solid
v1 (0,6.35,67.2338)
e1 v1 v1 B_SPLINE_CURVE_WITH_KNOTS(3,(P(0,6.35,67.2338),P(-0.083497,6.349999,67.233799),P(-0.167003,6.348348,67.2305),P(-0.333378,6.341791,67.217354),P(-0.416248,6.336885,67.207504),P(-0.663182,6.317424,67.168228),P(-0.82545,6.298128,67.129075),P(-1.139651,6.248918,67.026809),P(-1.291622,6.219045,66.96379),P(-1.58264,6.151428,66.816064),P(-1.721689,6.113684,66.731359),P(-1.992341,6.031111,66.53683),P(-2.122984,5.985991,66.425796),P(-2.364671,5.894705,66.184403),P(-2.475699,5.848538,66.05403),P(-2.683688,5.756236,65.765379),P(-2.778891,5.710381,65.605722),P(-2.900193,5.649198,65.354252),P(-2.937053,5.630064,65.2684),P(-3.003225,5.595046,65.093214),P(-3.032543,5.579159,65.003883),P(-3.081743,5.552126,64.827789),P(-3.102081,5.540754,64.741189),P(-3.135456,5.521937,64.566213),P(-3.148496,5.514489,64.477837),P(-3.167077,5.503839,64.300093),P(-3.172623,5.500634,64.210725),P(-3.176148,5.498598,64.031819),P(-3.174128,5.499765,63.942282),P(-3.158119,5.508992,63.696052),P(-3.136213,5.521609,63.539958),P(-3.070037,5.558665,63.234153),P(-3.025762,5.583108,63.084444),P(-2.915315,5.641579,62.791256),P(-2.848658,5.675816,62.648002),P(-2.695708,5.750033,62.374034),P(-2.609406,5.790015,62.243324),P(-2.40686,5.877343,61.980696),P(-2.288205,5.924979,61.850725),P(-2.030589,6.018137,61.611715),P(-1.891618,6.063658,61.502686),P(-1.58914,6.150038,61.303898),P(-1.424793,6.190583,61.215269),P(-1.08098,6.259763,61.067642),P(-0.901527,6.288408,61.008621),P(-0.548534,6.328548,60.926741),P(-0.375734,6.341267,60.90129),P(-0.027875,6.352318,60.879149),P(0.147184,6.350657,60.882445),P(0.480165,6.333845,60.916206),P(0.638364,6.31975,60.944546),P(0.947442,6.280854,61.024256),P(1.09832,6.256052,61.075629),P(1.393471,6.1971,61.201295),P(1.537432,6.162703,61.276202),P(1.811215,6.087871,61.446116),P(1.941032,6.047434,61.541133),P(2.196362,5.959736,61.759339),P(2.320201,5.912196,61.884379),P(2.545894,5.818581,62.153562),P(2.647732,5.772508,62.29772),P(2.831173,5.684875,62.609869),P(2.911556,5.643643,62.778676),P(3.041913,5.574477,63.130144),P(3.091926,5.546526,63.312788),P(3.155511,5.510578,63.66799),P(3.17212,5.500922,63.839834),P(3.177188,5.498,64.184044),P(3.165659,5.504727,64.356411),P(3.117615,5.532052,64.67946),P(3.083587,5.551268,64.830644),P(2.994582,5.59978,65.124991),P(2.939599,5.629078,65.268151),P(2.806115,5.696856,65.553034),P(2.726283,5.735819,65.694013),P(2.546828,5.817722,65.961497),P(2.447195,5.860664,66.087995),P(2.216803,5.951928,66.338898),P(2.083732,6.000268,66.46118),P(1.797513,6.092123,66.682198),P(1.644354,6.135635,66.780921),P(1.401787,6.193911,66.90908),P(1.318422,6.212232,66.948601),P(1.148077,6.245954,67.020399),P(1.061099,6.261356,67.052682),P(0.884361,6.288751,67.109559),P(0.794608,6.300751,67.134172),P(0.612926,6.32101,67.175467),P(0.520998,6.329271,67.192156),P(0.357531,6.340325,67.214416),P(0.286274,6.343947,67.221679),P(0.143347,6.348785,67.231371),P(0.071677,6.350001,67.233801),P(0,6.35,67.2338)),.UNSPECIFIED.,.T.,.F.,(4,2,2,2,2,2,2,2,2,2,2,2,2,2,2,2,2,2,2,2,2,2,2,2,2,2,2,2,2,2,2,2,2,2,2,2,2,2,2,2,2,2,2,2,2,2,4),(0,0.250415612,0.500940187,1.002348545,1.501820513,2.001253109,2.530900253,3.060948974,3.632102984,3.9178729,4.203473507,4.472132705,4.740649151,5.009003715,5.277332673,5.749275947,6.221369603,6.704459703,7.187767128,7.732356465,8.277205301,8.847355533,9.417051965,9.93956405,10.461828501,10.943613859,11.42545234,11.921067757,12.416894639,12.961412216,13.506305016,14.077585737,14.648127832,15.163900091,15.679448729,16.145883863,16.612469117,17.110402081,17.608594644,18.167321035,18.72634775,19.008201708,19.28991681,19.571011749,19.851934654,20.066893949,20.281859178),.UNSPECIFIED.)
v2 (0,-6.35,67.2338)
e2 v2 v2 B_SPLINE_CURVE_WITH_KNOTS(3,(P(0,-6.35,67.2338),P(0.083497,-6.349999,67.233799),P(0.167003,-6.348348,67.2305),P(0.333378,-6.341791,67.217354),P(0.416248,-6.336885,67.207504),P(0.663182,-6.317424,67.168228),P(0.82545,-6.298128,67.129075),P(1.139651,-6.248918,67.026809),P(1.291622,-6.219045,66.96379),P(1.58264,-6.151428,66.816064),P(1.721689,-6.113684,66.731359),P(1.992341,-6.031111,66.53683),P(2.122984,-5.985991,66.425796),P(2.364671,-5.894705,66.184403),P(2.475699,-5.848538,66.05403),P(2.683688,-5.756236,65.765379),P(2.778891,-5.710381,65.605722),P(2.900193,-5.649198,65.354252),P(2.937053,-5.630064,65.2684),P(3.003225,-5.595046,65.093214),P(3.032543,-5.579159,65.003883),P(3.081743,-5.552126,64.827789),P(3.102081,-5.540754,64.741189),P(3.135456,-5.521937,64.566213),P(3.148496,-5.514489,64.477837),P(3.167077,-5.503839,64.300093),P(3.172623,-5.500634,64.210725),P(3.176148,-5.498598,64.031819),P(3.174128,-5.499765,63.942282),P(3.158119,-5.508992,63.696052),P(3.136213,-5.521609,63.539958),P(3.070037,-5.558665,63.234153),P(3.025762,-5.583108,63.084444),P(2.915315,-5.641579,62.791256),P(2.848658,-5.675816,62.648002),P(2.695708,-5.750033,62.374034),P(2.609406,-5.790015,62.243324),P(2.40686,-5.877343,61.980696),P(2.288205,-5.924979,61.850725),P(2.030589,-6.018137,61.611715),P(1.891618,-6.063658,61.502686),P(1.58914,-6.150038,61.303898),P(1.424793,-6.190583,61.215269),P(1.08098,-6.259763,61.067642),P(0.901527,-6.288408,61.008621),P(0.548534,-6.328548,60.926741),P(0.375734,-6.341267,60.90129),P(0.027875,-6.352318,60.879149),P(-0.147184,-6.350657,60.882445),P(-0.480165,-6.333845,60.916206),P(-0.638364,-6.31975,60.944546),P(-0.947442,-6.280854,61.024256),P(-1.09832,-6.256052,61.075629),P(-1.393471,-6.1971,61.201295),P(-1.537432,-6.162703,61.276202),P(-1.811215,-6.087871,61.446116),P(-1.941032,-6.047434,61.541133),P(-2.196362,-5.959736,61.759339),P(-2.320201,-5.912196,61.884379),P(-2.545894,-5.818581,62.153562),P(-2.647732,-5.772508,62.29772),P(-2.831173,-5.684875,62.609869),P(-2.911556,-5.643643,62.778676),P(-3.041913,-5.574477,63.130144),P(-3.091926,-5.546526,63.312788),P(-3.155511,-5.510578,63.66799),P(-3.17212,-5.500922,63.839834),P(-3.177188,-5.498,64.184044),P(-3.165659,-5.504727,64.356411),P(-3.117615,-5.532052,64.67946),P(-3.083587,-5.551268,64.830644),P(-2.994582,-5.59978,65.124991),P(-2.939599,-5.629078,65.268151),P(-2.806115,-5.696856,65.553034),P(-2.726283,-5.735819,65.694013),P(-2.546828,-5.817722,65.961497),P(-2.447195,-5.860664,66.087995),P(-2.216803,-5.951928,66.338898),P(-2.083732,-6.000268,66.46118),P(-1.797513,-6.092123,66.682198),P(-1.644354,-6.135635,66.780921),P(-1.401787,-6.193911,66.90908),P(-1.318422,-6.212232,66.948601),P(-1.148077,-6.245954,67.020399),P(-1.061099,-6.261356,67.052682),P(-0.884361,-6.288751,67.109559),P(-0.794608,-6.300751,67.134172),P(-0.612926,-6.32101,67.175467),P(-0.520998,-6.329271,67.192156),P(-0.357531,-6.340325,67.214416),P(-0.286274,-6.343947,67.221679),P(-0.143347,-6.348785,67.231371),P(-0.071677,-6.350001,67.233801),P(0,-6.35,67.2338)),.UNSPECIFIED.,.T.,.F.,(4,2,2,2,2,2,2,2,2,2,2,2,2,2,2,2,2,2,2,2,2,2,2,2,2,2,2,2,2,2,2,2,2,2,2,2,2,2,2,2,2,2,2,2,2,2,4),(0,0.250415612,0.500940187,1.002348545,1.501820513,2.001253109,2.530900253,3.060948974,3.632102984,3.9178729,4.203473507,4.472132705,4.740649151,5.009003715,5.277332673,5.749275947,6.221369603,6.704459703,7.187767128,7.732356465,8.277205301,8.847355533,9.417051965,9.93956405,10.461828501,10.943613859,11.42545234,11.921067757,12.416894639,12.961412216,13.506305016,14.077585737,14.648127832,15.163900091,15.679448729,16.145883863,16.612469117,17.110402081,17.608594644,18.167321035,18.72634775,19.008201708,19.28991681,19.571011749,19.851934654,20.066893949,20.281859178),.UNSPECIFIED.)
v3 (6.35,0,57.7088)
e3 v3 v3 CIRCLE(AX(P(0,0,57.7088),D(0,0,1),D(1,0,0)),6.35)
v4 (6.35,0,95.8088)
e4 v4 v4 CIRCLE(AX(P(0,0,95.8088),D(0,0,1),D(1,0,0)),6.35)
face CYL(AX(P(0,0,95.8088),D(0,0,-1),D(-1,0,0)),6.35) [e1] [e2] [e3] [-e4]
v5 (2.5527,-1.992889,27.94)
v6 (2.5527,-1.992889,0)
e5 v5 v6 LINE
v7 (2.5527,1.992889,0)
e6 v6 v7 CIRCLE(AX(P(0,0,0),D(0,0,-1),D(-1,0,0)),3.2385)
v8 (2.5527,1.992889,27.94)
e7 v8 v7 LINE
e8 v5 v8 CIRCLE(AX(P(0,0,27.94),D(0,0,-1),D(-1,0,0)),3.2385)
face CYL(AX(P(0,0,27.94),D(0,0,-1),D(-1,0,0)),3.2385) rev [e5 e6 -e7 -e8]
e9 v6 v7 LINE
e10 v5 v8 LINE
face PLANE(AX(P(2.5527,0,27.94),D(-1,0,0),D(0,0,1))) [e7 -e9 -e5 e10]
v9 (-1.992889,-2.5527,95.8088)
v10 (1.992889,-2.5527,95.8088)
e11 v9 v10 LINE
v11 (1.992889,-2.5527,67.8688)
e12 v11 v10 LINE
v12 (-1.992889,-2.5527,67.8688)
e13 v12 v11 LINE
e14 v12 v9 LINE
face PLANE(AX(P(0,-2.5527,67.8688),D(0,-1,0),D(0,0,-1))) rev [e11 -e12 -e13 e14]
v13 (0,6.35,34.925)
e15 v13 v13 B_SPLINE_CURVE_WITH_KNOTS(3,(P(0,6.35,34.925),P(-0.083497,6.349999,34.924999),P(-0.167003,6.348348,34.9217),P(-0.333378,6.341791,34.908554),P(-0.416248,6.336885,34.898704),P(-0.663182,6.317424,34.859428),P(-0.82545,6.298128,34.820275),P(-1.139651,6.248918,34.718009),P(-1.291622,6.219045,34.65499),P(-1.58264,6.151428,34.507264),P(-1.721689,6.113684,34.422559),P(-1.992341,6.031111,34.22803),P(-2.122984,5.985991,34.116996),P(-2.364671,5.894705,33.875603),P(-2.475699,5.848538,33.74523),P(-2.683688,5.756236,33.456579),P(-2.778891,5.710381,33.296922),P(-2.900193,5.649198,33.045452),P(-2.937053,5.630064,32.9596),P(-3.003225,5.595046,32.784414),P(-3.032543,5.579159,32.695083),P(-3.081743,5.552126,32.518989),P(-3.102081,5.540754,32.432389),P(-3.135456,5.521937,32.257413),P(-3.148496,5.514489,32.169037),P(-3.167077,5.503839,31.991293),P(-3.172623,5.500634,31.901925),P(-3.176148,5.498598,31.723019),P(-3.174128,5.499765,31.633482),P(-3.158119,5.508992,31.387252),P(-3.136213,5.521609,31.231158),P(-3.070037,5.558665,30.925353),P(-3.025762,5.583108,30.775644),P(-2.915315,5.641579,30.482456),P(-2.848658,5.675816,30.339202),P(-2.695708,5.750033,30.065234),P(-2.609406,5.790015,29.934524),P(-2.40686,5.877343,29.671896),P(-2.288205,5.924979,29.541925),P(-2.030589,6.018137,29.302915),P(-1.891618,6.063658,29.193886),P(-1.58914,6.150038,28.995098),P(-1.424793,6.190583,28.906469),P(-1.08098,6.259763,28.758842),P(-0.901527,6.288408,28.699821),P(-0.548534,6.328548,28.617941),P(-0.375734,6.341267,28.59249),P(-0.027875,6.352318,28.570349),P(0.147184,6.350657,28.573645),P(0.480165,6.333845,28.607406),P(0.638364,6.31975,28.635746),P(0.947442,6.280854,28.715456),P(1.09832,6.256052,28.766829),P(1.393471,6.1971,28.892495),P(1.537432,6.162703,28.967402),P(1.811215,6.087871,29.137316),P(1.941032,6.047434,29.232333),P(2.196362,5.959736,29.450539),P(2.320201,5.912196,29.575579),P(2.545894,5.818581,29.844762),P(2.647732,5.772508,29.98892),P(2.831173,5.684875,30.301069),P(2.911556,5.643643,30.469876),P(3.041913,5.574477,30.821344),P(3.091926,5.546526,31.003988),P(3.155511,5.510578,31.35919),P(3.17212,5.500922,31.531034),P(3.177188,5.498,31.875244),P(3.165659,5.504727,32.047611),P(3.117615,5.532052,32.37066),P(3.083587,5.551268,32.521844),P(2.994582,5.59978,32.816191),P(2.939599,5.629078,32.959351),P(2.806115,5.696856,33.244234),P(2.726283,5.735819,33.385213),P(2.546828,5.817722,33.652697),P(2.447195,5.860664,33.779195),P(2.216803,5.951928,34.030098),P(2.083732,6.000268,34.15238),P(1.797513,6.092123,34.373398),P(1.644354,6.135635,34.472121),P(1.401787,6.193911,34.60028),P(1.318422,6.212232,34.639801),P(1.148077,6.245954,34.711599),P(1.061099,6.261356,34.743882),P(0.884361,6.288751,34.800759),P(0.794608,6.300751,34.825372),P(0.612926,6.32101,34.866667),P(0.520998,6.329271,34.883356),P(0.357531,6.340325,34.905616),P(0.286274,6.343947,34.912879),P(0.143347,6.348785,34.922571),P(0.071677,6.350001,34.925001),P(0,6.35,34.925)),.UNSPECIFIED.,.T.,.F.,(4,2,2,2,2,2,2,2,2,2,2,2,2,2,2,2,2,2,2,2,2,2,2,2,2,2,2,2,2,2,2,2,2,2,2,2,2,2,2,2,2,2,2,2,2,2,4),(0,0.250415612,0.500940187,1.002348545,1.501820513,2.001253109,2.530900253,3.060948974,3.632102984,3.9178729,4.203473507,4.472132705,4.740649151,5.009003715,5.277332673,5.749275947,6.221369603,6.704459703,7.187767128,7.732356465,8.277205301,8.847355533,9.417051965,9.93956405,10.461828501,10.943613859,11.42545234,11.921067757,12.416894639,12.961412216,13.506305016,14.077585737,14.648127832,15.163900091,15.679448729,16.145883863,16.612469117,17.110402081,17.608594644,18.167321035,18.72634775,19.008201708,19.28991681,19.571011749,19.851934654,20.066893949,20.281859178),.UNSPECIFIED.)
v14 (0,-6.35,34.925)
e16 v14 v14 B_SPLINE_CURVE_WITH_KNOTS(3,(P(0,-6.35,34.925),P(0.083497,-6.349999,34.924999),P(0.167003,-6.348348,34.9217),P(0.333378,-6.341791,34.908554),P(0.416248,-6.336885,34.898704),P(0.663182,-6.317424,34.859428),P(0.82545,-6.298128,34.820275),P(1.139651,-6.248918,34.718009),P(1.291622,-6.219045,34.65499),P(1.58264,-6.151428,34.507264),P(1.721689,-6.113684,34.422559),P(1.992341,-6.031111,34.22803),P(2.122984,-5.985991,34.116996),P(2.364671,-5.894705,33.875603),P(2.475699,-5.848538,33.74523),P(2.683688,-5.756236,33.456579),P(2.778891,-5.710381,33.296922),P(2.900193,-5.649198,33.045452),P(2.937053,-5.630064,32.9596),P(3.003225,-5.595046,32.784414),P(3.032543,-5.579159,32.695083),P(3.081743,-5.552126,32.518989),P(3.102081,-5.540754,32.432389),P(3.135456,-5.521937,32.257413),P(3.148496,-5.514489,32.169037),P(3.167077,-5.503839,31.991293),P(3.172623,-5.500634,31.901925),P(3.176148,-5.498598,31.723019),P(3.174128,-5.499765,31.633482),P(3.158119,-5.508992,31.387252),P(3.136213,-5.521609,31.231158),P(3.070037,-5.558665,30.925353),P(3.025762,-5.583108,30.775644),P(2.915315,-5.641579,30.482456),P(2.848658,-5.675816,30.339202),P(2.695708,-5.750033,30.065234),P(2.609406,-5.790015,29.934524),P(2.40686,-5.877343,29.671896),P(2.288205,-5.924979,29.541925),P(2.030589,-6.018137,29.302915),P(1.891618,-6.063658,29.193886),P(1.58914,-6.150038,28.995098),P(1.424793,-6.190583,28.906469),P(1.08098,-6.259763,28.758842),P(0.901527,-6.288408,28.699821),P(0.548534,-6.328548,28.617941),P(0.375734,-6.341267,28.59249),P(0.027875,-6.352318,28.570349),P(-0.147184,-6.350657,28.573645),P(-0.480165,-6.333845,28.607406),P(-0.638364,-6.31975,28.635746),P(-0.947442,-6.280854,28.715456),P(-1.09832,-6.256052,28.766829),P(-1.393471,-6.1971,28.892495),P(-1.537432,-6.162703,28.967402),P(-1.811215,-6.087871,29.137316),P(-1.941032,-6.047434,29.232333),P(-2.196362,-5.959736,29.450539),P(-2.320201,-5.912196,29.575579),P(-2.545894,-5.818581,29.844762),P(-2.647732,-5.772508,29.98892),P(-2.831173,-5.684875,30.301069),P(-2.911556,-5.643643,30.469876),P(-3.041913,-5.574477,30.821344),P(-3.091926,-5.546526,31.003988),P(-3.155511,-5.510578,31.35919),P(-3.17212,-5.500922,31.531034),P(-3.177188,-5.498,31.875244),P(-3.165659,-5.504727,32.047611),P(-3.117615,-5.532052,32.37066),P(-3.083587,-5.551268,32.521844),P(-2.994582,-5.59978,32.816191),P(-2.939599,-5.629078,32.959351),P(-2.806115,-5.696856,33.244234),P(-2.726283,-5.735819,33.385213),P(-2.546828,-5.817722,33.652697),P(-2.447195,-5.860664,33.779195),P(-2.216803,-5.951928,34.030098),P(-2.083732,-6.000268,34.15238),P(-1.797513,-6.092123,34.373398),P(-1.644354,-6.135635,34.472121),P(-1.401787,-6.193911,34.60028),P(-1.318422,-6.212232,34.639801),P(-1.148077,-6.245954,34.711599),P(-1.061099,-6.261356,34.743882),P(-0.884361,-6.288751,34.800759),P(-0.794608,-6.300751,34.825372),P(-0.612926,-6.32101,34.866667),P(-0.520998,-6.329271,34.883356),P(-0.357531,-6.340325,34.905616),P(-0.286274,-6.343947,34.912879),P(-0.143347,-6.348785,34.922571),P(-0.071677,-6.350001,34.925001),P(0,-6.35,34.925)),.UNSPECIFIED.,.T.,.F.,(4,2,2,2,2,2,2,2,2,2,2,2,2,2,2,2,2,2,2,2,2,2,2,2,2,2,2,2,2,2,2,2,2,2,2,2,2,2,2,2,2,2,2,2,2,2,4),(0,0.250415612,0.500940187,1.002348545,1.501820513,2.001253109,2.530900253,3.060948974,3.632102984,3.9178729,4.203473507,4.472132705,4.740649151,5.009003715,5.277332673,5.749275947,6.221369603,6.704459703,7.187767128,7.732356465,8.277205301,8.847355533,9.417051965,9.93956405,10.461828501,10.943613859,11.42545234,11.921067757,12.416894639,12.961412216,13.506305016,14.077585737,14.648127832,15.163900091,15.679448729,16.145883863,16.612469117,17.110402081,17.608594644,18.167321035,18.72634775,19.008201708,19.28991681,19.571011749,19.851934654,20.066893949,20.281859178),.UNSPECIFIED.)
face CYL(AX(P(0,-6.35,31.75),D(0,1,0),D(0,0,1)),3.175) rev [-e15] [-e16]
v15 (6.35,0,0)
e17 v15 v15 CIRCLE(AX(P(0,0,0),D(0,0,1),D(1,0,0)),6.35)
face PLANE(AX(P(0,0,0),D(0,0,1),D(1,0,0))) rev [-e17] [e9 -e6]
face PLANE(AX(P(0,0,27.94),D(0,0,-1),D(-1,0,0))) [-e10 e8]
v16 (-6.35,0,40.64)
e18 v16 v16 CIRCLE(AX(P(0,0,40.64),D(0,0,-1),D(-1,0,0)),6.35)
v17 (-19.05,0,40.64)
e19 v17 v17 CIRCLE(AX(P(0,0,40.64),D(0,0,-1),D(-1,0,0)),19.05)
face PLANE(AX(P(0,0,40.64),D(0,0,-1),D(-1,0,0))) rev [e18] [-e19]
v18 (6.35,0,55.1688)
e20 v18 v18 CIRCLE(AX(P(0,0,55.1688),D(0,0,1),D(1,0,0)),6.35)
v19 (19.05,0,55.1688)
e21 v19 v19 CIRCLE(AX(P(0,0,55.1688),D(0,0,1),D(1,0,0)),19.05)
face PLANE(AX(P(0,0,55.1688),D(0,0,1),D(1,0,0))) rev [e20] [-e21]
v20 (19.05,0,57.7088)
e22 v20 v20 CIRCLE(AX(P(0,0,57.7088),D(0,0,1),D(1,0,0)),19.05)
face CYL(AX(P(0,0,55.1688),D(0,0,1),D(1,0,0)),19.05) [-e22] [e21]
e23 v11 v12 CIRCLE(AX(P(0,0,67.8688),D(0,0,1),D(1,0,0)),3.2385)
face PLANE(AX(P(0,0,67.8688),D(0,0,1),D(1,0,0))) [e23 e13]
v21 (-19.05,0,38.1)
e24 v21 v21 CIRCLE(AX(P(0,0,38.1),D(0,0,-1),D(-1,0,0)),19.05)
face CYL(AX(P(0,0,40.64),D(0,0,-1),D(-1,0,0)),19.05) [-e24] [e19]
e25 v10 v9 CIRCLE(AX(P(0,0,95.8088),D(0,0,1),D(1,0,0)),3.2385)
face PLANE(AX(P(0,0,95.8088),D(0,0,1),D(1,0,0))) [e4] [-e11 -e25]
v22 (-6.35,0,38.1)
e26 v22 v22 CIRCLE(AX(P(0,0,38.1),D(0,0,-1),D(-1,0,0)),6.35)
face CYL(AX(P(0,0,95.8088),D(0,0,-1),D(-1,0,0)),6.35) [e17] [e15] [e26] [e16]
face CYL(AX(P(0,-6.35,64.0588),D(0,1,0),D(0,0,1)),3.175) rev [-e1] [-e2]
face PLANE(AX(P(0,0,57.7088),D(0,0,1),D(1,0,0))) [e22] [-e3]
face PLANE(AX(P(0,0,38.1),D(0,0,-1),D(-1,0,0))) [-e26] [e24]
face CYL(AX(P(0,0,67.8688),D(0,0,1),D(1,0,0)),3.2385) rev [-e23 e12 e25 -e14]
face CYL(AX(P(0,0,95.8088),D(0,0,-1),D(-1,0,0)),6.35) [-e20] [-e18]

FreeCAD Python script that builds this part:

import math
import FreeCAD as App
import Part
import Sketcher

V = App.Vector
Q = App.Units.Quantity

doc = App.newDocument("Part")
body = doc.addObject("PartDesign::Body", "Body")

sketch1 = doc.addObject("Sketcher::SketchObject", "Sketch")
body.addObject(sketch1)
sketch1.AttachmentSupport = (doc.XY_Plane, [""])
sketch1.MapMode = "FlatFace"
sketch1.addGeometry(Part.Circle(V(0, 0, 0), V(0, 0, 1), 6), False)
sketch1.addConstraint(Sketcher.Constraint("Coincident", 0, 3, -1, 1))
sketch1.addConstraint(Sketcher.Constraint("Diameter", 0, Q("0.5 in")))
pad1 = doc.addObject("PartDesign::Pad", "Pad")
body.addObject(pad1)
pad1.Profile = sketch1
pad1.Length = Q("3.772 in")

sketch2 = doc.addObject("Sketcher::SketchObject", "Sketch001")
body.addObject(sketch2)
sketch2.AttachmentSupport = (doc.XZ_Plane, [""])
sketch2.MapMode = "FlatFace"
sketch2.addGeometry(Part.Circle(V(0, 64.1, 0), V(0, 0, 1), 3.2), False)
sketch2.addGeometry(Part.Circle(V(0, 31.8, 0), V(0, 0, 1), 3.2), False)
sketch2.addConstraint(Sketcher.Constraint("Equal", 0, 1))
sketch2.addConstraint(Sketcher.Constraint("PointOnObject", 0, 3, -2))
sketch2.addConstraint(Sketcher.Constraint("PointOnObject", 1, 3, -2))
sketch2.addConstraint(Sketcher.Constraint("Diameter", 0, Q("0.25 in")))
sketch2.addConstraint(Sketcher.Constraint("DistanceY", -1, 1, 1, 3, Q("1.25 in")))
sketch2.addConstraint(Sketcher.Constraint("DistanceY", -1, 1, 0, 3, Q("2.522 in")))
pocket1 = doc.addObject("PartDesign::Pocket", "Pocket")
body.addObject(pocket1)
pocket1.Profile = sketch2
pocket1.Type = "ThroughAll"
pocket1.Midplane = True

sketch3 = doc.addObject("Sketcher::SketchObject", "Sketch002")
body.addObject(sketch3)
sketch3.AttachmentSupport = (doc.XY_Plane, [""])
sketch3.MapMode = "FlatFace"
sketch3.AttachmentOffset = App.Placement(V(0, 0, 2.272 * 25.4), App.Rotation())
sketch3.addGeometry(Part.Circle(V(0, 0, 0), V(0, 0, 1), 19), False)
sketch3.addConstraint(Sketcher.Constraint("Coincident", 0, 3, -1, 1))
sketch3.addConstraint(Sketcher.Constraint("Diameter", 0, Q("1.5 in")))
pad2 = doc.addObject("PartDesign::Pad", "Pad001")
body.addObject(pad2)
pad2.Profile = sketch3
pad2.Length = Q("0.1 in")
pad2.Reversed = True

sketch4 = doc.addObject("Sketcher::SketchObject", "Sketch003")
body.addObject(sketch4)
sketch4.AttachmentSupport = (doc.XY_Plane, [""])
sketch4.MapMode = "FlatFace"
sketch4.AttachmentOffset = App.Placement(V(0, 0, 1.5 * 25.4), App.Rotation())
sketch4.addGeometry(Part.Circle(V(0, 0, 0), V(0, 0, 1), 19), False)
sketch4.addConstraint(Sketcher.Constraint("Coincident", 0, 3, -1, 1))
sketch4.addConstraint(Sketcher.Constraint("Diameter", 0, Q("1.5 in")))
pad3 = doc.addObject("PartDesign::Pad", "Pad002")
body.addObject(pad3)
pad3.Profile = sketch4
pad3.Length = Q("0.1 in")

sketch5 = doc.addObject("Sketcher::SketchObject", "Sketch004")
body.addObject(sketch5)
sketch5.AttachmentSupport = (doc.XY_Plane, [""])
sketch5.MapMode = "FlatFace"
sketch5.AttachmentOffset = App.Placement(V(0, 0, 3.772 * 25.4), App.Rotation())
sketch5.addGeometry(Part.LineSegment(V(-2, -2.6, 0), V(2, -2.6, 0)), False)
sketch5.addGeometry(Part.ArcOfCircle(Part.Circle(V(0, 0, 0), V(0, 0, 1), 3.2), math.radians(-52), math.radians(232)), False)
sketch5.addConstraint(Sketcher.Constraint("Coincident", 0, 1, 1, 2))
sketch5.addConstraint(Sketcher.Constraint("Coincident", 1, 1, 0, 2))
sketch5.addConstraint(Sketcher.Constraint("Horizontal", 0))
sketch5.addConstraint(Sketcher.Constraint("Coincident", 1, 3, -1, 1))
sketch5.addConstraint(Sketcher.Constraint("Radius", 1, Q("0.1275 in")))
sketch5.addConstraint(Sketcher.Constraint("DistanceY", 0, 1, -1, 1, Q("0.1005 in")))
pocket2 = doc.addObject("PartDesign::Pocket", "Pocket001")
body.addObject(pocket2)
pocket2.Profile = sketch5
pocket2.Length = Q("1.1 in")

sketch6 = doc.addObject("Sketcher::SketchObject", "Sketch005")
body.addObject(sketch6)
sketch6.AttachmentSupport = (doc.XY_Plane, [""])
sketch6.MapMode = "FlatFace"
sketch6.addGeometry(Part.LineSegment(V(2.6, 2, 0), V(2.6, -2, 0)), False)
sketch6.addGeometry(Part.ArcOfCircle(Part.Circle(V(0, 0, 0), V(0, 0, 1), 3.2), math.radians(180), math.radians(322)), False)
sketch6.addGeometry(Part.ArcOfCircle(Part.Circle(V(0, 0, 0), V(0, 0, 1), 3.2), math.radians(38), math.radians(180)), False)
sketch6.addConstraint(Sketcher.Constraint("Coincident", 0, 2, 1, 2))
sketch6.addConstraint(Sketcher.Constraint("Tangent", 1, 1, 2, 2))
sketch6.addConstraint(Sketcher.Constraint("Coincident", 2, 1, 0, 1))
sketch6.addConstraint(Sketcher.Constraint("Vertical", 0))
sketch6.addConstraint(Sketcher.Constraint("Coincident", 1, 3, -1, 1))
sketch6.addConstraint(Sketcher.Constraint("Equal", 1, 2))
sketch6.addConstraint(Sketcher.Constraint("PointOnObject", 1, 1, -1))
sketch6.addConstraint(Sketcher.Constraint("Radius", 1, Q("0.1275 in")))
sketch6.addConstraint(Sketcher.Constraint("DistanceX", 1, 1, 0, 2, Q("0.228 in")))
pocket3 = doc.addObject("PartDesign::Pocket", "Pocket002")
body.addObject(pocket3)
pocket3.Profile = sketch6
pocket3.Length = Q("1.1 in")
pocket3.Reversed = True

doc.recompute()
